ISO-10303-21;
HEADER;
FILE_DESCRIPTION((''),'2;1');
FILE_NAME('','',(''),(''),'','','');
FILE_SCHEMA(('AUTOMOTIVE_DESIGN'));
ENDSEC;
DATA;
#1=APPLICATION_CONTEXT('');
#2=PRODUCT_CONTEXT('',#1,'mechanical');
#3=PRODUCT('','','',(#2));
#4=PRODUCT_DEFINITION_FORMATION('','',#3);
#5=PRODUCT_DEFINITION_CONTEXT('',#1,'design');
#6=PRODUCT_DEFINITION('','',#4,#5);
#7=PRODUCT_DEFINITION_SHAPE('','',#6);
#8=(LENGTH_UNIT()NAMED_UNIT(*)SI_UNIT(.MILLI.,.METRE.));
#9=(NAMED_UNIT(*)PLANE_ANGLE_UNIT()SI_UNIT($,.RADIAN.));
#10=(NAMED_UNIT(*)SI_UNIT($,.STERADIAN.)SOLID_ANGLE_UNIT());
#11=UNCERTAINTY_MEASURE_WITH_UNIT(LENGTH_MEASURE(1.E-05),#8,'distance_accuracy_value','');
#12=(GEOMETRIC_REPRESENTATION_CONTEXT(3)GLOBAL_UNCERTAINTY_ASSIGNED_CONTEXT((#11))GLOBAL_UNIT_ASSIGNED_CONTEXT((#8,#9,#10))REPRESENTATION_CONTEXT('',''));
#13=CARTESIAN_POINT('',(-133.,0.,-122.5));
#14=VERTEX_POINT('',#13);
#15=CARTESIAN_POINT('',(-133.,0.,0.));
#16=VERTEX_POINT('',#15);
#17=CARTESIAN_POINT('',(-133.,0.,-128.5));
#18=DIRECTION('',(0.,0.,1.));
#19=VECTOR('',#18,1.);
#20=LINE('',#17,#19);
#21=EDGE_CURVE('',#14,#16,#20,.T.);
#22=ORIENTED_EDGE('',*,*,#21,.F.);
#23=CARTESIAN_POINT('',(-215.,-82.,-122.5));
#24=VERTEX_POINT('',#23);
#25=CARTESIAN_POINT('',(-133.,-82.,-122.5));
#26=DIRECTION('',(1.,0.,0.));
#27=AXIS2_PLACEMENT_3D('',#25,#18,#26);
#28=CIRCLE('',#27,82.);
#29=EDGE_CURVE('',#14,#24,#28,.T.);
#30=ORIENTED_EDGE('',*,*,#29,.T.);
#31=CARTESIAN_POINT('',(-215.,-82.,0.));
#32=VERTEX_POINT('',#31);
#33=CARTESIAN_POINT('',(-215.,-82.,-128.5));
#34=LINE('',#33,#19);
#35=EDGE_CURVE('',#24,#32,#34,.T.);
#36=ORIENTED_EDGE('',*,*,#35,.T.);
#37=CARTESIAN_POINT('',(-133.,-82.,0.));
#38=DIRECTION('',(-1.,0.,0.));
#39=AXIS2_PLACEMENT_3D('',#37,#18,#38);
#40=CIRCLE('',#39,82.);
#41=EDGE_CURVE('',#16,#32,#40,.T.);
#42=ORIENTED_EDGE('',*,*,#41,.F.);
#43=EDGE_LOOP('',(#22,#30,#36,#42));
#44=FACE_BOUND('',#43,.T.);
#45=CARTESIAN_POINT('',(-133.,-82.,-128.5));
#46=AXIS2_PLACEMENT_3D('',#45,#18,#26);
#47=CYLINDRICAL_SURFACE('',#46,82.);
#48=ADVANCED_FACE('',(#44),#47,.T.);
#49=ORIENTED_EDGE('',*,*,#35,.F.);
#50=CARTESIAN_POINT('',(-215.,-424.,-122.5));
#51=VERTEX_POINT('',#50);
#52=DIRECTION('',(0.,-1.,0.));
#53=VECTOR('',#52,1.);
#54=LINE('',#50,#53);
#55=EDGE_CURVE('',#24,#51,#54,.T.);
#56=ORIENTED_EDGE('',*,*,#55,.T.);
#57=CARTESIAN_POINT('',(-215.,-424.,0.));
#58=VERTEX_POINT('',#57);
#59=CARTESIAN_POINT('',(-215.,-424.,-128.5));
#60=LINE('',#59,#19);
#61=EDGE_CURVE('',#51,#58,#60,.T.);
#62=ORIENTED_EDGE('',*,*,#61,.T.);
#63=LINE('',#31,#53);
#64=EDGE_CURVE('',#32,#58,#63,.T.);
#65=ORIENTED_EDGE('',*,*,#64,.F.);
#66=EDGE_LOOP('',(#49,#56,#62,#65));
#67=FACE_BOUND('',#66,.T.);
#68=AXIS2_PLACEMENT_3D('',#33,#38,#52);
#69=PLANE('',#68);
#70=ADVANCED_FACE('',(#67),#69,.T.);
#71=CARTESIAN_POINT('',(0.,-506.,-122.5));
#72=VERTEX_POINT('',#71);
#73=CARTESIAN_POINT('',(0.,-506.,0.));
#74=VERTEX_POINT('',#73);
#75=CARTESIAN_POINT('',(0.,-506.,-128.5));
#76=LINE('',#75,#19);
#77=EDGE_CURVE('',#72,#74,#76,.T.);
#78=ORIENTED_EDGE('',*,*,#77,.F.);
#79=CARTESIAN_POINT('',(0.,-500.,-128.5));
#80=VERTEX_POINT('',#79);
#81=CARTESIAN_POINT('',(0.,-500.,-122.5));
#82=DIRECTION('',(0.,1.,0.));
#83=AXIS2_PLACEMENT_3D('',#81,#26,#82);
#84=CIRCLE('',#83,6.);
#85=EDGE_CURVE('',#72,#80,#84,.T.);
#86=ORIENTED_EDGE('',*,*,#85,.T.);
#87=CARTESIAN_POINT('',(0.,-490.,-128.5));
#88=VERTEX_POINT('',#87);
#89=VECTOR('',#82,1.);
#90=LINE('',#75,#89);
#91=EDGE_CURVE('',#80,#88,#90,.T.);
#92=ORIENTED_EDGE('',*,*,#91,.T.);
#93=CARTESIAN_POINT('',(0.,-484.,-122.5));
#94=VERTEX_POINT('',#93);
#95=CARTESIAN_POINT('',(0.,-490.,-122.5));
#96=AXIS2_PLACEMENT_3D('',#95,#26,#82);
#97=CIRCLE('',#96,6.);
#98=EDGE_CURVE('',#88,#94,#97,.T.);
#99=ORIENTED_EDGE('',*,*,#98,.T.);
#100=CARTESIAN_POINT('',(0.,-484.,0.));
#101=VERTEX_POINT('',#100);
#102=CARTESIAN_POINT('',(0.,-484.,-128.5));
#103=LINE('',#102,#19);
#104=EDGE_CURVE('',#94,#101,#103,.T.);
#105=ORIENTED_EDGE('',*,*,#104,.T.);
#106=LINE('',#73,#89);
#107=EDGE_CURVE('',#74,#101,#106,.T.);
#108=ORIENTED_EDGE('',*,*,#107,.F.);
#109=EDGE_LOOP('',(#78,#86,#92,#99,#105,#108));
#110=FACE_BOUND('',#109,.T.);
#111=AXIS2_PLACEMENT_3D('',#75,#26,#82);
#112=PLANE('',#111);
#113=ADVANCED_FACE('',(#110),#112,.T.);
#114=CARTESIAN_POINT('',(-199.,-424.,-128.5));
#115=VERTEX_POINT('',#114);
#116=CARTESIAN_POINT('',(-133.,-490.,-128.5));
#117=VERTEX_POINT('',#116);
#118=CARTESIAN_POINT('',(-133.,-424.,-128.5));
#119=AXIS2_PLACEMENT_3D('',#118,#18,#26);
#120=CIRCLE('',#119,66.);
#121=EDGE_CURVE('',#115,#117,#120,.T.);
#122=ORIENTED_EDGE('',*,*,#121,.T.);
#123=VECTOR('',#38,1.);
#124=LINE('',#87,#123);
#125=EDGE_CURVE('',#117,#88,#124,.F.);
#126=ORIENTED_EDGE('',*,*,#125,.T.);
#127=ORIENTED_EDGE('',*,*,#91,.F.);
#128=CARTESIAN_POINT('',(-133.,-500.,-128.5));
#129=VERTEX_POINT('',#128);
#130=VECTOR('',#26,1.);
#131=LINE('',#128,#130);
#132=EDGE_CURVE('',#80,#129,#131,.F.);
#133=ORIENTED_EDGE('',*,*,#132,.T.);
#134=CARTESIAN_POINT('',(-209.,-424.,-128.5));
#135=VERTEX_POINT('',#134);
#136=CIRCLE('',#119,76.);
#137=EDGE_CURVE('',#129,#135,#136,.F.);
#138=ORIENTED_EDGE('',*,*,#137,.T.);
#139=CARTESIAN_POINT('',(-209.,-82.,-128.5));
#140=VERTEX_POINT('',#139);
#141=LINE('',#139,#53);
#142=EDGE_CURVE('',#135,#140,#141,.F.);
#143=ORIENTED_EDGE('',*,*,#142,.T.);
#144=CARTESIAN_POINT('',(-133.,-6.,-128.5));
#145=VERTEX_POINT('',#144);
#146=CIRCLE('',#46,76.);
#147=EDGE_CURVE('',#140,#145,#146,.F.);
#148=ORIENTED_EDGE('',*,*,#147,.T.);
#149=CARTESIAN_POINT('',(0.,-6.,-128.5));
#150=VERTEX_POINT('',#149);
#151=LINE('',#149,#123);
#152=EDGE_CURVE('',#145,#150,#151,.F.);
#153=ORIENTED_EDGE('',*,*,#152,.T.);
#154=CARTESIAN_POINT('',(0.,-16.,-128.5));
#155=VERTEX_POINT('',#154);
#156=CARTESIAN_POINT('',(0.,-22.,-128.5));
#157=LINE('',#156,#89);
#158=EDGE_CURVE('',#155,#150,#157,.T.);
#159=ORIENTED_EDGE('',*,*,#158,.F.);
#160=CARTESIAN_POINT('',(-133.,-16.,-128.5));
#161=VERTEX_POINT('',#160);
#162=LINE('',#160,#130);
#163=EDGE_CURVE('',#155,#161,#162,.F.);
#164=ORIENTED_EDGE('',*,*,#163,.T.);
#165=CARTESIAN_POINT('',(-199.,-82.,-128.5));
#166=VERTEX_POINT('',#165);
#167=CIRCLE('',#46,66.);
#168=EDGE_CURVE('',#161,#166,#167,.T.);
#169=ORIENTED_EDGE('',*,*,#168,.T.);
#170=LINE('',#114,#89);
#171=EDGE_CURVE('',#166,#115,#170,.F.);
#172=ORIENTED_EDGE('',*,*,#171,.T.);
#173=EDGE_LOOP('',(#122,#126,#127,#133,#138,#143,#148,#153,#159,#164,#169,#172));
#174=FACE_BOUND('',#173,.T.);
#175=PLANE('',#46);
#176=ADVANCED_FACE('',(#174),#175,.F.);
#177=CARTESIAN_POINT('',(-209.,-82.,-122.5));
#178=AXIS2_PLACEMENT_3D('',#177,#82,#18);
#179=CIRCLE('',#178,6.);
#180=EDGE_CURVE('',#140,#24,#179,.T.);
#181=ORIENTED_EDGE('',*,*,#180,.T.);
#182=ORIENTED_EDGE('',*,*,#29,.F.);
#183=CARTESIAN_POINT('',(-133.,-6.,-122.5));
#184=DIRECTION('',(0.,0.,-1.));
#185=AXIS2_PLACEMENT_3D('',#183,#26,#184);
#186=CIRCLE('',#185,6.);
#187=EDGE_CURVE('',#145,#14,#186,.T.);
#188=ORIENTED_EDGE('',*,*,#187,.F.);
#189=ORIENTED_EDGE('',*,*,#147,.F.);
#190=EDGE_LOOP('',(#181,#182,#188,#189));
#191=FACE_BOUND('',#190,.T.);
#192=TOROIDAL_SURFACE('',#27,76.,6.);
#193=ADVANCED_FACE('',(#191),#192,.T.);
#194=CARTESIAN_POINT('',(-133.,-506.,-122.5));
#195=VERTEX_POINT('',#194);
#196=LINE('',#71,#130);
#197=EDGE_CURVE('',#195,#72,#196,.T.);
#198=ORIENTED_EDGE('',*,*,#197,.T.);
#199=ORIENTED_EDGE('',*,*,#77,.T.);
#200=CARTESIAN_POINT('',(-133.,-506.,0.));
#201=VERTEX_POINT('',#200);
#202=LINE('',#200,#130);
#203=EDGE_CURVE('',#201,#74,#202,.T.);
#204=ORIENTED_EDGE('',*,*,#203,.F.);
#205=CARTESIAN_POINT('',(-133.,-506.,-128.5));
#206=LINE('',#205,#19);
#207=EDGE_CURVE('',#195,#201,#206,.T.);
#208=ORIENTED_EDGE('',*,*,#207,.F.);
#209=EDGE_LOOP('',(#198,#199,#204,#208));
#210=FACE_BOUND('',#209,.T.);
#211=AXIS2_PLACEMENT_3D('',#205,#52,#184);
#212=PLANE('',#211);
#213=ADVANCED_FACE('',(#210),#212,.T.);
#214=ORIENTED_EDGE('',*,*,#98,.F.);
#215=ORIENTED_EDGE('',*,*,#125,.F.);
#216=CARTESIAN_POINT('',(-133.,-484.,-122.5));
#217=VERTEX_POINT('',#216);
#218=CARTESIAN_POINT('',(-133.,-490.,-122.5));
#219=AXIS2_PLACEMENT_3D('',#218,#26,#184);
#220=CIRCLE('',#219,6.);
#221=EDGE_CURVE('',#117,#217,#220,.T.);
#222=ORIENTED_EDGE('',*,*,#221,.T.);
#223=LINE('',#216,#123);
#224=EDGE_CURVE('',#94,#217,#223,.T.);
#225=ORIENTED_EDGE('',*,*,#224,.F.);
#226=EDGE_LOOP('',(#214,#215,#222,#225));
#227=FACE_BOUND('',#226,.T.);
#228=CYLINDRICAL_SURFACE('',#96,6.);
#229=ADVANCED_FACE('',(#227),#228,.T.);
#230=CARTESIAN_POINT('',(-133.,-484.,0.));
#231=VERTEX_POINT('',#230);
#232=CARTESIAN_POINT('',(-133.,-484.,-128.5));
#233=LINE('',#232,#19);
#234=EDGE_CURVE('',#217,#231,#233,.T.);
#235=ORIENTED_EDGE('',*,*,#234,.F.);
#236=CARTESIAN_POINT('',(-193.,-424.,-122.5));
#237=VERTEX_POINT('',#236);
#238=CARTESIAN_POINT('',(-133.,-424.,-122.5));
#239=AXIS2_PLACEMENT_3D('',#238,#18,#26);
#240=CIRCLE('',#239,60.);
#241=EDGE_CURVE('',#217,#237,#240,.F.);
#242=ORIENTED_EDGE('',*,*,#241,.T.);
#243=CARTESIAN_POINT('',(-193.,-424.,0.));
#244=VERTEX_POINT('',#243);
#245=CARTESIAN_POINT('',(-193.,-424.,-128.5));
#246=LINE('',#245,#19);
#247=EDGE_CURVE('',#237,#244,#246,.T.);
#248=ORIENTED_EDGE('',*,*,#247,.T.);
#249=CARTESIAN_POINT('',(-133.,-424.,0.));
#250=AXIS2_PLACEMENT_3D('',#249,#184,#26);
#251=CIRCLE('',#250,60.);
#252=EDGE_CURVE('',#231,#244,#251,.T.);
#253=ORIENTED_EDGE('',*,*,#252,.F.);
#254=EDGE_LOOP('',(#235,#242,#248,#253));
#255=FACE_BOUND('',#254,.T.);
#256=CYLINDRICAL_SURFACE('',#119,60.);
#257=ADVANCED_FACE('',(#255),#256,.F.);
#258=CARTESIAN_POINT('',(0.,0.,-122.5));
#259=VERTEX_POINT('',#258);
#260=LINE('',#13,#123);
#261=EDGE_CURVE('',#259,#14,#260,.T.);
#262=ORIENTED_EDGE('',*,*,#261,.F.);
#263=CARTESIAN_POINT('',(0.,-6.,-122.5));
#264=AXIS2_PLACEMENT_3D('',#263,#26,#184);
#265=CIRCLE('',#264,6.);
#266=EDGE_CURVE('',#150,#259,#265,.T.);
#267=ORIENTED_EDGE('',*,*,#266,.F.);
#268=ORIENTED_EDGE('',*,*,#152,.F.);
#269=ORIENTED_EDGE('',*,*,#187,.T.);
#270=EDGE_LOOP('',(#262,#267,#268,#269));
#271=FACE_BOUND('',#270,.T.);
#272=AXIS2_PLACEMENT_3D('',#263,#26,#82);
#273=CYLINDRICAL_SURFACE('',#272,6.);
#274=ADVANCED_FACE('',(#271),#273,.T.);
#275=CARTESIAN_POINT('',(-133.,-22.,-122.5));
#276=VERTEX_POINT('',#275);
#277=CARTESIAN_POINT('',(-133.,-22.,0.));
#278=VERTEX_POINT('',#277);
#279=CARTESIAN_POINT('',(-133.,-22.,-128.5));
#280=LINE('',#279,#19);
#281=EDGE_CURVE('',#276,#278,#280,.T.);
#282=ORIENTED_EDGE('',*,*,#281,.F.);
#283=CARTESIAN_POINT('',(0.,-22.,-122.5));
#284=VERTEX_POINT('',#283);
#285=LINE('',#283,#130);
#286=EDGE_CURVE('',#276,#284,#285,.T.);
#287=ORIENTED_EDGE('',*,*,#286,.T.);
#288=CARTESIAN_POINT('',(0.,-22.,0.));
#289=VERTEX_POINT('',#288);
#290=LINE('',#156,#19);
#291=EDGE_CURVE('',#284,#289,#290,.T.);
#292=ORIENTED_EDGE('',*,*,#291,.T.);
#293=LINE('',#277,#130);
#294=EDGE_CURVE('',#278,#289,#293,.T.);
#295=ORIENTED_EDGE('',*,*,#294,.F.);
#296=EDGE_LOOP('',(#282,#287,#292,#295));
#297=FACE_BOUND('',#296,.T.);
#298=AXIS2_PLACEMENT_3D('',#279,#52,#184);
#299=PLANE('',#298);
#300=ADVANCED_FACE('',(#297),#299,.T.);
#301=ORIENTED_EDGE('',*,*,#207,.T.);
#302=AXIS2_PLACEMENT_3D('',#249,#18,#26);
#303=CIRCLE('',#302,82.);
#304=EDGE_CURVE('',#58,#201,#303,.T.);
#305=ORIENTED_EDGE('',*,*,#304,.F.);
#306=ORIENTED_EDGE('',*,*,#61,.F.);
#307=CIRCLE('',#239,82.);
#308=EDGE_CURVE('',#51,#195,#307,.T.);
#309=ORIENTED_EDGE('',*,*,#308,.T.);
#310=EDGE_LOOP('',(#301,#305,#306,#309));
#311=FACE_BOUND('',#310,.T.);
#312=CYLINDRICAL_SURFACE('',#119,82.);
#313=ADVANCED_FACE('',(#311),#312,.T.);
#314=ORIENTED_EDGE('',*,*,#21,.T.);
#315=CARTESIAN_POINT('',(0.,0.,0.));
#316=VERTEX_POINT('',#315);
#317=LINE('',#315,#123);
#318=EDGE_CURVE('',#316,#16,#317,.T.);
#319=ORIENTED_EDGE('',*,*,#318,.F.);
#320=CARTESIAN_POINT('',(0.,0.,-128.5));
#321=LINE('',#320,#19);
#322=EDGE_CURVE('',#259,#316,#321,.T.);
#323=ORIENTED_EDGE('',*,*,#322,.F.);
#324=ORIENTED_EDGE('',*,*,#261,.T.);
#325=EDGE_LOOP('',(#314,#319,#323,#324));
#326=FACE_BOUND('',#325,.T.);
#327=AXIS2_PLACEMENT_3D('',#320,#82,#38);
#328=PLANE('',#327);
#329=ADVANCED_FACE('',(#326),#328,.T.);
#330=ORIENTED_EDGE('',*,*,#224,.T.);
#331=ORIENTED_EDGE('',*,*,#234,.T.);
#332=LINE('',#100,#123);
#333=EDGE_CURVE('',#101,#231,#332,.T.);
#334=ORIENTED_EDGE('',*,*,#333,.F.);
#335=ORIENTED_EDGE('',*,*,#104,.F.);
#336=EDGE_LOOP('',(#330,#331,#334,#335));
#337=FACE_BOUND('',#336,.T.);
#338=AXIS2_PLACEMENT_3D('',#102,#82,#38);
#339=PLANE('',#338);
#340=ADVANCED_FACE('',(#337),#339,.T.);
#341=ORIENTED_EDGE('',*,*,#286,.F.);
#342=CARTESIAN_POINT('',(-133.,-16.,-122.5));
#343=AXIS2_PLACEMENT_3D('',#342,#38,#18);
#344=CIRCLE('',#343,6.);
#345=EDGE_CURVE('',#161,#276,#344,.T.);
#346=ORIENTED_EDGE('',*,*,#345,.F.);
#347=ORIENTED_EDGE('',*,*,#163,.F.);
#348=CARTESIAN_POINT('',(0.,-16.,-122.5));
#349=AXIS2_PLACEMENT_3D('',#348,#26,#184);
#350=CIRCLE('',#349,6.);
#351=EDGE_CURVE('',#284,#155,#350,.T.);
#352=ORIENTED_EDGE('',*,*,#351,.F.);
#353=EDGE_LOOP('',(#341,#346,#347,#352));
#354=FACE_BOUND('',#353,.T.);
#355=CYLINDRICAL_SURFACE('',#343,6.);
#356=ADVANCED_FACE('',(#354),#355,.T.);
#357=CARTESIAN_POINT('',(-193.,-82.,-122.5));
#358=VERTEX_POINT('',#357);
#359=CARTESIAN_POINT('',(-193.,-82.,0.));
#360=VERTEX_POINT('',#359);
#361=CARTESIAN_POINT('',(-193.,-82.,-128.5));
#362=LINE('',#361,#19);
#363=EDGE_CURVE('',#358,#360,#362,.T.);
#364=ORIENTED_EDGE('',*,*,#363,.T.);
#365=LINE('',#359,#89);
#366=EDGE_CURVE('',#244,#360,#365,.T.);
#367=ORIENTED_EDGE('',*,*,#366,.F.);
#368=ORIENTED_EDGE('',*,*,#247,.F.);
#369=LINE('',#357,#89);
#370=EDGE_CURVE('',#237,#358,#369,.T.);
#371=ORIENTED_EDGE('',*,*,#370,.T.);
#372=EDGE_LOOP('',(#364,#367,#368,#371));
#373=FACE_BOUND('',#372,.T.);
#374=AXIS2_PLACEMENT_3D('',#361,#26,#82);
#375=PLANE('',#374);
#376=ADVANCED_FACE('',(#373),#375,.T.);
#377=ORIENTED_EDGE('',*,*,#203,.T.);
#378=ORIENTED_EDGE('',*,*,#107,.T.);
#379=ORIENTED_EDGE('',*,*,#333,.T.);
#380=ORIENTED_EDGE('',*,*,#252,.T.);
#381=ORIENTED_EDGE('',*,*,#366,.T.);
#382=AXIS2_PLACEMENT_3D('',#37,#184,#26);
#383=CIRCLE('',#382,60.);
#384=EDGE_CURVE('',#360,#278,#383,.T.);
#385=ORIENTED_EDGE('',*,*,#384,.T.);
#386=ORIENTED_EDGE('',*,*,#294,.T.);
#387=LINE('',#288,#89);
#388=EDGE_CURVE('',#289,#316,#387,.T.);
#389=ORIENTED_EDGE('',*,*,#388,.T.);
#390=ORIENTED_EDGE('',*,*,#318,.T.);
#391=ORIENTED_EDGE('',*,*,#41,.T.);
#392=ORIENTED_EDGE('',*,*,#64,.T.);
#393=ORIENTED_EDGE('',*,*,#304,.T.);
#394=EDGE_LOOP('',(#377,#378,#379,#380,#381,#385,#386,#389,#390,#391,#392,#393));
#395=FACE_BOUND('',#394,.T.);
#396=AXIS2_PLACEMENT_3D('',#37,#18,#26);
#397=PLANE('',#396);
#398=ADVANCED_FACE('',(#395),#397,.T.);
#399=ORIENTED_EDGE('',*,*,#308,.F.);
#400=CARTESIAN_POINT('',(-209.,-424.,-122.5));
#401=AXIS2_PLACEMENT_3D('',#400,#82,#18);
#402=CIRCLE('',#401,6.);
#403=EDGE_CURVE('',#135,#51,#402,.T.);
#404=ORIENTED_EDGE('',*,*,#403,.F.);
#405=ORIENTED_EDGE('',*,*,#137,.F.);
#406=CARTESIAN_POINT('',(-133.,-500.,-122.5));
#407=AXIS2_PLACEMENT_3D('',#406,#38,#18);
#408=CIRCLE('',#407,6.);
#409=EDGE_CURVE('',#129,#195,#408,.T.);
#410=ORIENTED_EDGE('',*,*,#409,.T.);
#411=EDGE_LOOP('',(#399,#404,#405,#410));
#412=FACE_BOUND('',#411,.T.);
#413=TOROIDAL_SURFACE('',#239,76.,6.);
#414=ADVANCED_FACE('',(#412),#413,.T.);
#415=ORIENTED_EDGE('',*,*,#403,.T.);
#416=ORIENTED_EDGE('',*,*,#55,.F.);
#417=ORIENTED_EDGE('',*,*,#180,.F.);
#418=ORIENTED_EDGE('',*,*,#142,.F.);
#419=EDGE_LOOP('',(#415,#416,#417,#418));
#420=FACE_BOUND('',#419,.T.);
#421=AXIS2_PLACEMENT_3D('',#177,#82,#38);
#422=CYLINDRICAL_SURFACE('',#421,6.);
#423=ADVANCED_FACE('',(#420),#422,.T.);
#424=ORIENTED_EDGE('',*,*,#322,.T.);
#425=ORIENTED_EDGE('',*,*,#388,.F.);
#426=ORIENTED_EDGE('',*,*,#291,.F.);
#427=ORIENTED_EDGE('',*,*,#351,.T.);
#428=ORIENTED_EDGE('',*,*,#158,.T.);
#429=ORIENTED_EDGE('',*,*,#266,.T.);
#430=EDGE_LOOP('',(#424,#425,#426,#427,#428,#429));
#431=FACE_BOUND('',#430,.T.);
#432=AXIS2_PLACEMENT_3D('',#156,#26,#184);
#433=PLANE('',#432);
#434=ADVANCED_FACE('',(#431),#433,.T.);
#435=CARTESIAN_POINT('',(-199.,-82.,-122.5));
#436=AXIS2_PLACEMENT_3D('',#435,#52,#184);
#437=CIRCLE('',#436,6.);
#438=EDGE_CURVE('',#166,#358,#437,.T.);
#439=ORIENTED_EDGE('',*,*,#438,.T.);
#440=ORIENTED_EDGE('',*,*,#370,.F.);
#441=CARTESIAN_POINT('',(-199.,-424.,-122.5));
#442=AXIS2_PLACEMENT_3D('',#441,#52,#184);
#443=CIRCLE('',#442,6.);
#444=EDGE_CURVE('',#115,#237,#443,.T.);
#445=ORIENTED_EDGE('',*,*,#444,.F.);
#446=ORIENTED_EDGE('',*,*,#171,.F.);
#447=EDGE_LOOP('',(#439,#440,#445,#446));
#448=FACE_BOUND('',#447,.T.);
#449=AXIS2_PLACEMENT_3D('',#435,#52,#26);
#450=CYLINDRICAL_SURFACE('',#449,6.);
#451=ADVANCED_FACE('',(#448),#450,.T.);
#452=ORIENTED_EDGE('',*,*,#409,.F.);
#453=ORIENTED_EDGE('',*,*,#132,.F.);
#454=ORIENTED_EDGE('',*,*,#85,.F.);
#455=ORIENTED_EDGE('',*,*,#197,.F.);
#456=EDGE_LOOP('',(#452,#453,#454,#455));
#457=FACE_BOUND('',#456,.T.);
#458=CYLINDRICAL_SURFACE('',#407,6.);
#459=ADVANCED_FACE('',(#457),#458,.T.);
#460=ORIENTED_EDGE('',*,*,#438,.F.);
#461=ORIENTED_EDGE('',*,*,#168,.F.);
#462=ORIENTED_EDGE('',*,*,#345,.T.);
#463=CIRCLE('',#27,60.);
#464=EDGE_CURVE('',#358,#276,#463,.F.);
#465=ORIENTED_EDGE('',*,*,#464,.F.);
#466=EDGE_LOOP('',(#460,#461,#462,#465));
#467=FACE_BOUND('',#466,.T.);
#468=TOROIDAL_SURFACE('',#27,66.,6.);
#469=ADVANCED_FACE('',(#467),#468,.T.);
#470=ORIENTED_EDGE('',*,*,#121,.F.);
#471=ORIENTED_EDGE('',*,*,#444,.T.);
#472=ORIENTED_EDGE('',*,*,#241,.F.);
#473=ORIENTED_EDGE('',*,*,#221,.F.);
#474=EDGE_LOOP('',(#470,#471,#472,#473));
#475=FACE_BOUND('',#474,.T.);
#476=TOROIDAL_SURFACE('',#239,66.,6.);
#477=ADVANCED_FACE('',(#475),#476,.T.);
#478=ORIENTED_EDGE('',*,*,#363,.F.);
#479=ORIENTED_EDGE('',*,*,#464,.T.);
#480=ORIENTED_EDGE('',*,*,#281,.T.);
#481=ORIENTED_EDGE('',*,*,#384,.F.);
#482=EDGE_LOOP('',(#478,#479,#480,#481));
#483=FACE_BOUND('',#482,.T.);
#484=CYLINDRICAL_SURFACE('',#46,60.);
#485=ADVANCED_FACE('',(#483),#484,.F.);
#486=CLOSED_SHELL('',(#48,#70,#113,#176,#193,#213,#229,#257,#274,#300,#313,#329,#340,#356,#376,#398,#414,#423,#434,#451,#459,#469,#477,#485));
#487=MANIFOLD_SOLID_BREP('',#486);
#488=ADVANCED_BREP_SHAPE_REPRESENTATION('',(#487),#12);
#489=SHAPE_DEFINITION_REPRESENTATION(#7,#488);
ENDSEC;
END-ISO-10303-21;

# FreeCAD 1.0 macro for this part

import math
import FreeCAD as App
import Part
import Sketcher
from FreeCAD import Vector


def edges_at(feature, points):
    """Names of the edges that pass closest to the given points."""
    edges = feature.Shape.Edges
    near = lambda p: min(range(len(edges)), key=lambda i: edges[i].distToShape(Part.Vertex(*p))[0])
    return sorted({f"Edge{near(p) + 1}" for p in points})

doc = App.newDocument("Part")
body = doc.addObject("PartDesign::Body", "Body")

sketch1 = doc.addObject("Sketcher::SketchObject", "Sketch")
body.addObject(sketch1)
sketch1.AttachmentSupport = (doc.XY_Plane, [""])
sketch1.MapMode = "FlatFace"
sketch1.addGeometry([
    Part.LineSegment(Vector(-133, -22, 0), Vector(0, -22, 0)),
    Part.LineSegment(Vector(0, -22, 0), Vector(0, 0, 0)),
    Part.LineSegment(Vector(0, 0, 0), Vector(-133, 0, 0)),
    Part.ArcOfCircle(Part.Circle(Vector(-133, -82, 0), Vector(0, 0, 1), 82), math.radians(90), math.radians(180)),
    Part.LineSegment(Vector(-215, -82, 0), Vector(-215, -424, 0)),
    Part.ArcOfCircle(Part.Circle(Vector(-133, -424, 0), Vector(0, 0, 1), 82), math.radians(-180), math.radians(-90)),
    Part.LineSegment(Vector(-133, -506, 0), Vector(0, -506, 0)),
    Part.LineSegment(Vector(0, -506, 0), Vector(0, -484, 0)),
    Part.LineSegment(Vector(0, -484, 0), Vector(-133, -484, 0)),
    Part.ArcOfCircle(Part.Circle(Vector(-133, -424, 0), Vector(0, 0, 1), 60), math.radians(-180), math.radians(-90)),
    Part.LineSegment(Vector(-193, -424, 0), Vector(-193, -82, 0)),
    Part.ArcOfCircle(Part.Circle(Vector(-133, -82, 0), Vector(0, 0, 1), 60), math.radians(90), math.radians(180)),
], False)
sketch1.addConstraint([
    Sketcher.Constraint("Coincident", 0, 2, 1, 1),
    Sketcher.Constraint("Coincident", 1, 2, 2, 1),
    Sketcher.Constraint("Tangent", 2, 2, 3, 1),
    Sketcher.Constraint("Tangent", 3, 2, 4, 1),
    Sketcher.Constraint("Tangent", 4, 2, 5, 1),
    Sketcher.Constraint("Tangent", 5, 2, 6, 1),
    Sketcher.Constraint("Coincident", 6, 2, 7, 1),
    Sketcher.Constraint("Coincident", 7, 2, 8, 1),
    Sketcher.Constraint("Tangent", 8, 2, 9, 2),
    Sketcher.Constraint("Tangent", 9, 1, 10, 1),
    Sketcher.Constraint("Tangent", 10, 2, 11, 2),
    Sketcher.Constraint("Tangent", 11, 1, 0, 1),
    Sketcher.Constraint("Horizontal", 0),
    Sketcher.Constraint("Vertical", 1),
    Sketcher.Constraint("Horizontal", 2),
    Sketcher.Constraint("Vertical", 4),
    Sketcher.Constraint("Horizontal", 6),
    Sketcher.Constraint("Vertical", 7),
    Sketcher.Constraint("Horizontal", 8),
    Sketcher.Constraint("Vertical", 10),
    Sketcher.Constraint("Coincident", 1, 2, -1, 1),
    Sketcher.Constraint("Coincident", 9, 3, 5, 3),
    Sketcher.Constraint("Coincident", 11, 3, 3, 3),
    Sketcher.Constraint("Equal", 3, 5),
    Sketcher.Constraint("PointOnObject", 6, 2, -2),
    Sketcher.Constraint("Radius", 3, 82.0),
    Sketcher.Constraint("Radius", 9, 60.0),
    Sketcher.Constraint("DistanceX", 0, 1, 0, 2, 133.0),
    Sketcher.Constraint("DistanceY", 4, 2, 4, 1, 342.0),
])
pad1 = doc.addObject("PartDesign::Pad", "Pad")
body.addObject(pad1)
pad1.Profile = sketch1
pad1.Length = 128.5
pad1.Reversed = True
doc.recompute()

fillet = doc.addObject("PartDesign::Fillet", "Fillet")
body.addObject(fillet)
fillet.Base = (pad1, edges_at(pad1, [
    (-66.5, 0, -128.5),
    (-190.983, -24.017, -128.5),
    (-215, -253, -128.5),
    (-190.983, -481.983, -128.5),
    (-66.5, -506, -128.5),
    (-66.5, -484, -128.5),
    (-175.426, -466.426, -128.5),
    (-193, -253, -128.5),
    (-175.426, -39.574, -128.5),
    (-66.5, -22, -128.5),
]))
fillet.Radius = 6

doc.recompute()
